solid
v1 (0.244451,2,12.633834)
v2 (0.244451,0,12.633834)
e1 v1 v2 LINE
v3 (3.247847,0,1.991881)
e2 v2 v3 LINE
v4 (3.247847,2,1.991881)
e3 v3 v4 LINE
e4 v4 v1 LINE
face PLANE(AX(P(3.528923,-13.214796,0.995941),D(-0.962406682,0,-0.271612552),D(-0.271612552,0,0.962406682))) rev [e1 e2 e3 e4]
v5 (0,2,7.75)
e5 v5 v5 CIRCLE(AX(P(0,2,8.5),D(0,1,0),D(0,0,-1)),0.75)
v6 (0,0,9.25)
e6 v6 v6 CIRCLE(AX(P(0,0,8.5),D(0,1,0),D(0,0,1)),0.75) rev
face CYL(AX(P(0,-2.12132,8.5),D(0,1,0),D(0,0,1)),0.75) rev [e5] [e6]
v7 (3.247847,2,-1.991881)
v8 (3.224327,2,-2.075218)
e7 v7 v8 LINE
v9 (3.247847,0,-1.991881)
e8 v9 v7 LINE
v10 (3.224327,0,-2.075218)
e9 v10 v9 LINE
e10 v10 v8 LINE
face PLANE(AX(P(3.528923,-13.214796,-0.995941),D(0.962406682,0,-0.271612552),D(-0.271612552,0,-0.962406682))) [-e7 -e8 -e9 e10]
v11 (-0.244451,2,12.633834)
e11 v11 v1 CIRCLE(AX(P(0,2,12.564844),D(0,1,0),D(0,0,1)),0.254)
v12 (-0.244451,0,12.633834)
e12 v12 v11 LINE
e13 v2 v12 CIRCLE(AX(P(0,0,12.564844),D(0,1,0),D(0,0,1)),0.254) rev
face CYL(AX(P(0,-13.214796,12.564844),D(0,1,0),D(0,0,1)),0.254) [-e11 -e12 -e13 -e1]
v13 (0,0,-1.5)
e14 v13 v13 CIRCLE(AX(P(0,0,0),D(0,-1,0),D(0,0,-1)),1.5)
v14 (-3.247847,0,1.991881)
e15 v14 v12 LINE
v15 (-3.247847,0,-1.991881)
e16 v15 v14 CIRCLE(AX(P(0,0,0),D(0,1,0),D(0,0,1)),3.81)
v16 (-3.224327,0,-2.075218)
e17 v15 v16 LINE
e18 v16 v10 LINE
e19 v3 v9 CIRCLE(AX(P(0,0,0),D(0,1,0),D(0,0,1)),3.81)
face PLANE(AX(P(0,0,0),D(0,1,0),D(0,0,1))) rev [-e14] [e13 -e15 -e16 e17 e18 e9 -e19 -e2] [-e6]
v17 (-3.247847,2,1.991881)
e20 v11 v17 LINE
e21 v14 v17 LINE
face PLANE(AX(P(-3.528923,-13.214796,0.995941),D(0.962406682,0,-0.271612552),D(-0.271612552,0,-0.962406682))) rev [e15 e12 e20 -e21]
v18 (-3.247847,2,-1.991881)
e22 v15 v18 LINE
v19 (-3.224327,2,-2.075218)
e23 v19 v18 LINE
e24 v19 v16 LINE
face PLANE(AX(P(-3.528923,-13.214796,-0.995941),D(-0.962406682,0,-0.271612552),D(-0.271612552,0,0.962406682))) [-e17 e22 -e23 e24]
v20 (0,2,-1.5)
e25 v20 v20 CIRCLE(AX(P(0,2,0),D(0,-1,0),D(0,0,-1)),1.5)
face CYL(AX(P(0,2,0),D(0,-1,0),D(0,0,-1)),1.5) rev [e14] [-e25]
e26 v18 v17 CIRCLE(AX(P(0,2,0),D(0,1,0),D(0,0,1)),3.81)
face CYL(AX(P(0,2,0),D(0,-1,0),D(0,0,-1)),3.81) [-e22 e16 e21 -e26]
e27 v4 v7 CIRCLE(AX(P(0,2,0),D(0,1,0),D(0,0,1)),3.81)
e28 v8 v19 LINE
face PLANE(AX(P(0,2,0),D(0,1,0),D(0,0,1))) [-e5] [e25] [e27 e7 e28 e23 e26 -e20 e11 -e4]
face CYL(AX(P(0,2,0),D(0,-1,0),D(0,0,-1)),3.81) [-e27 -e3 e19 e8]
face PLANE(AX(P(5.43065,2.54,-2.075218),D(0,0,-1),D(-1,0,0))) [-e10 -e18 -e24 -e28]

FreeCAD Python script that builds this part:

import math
import FreeCAD as App
import Part
import Sketcher


def edges_at(feature, points):
    """Names of the edges that pass closest to the given points."""
    edges = feature.Shape.Edges
    near = lambda p: min(range(len(edges)), key=lambda i: edges[i].distToShape(Part.Vertex(*p))[0])
    return sorted({f"Edge{near(p) + 1}" for p in points})


def add_polygon(sketch, points):
    """Adds a closed chain of lines whose ends are joined by coincident constraints."""
    first, n = sketch.GeometryCount, len(points)
    for a, b in zip(points, points[1:] + points[:1]):
        sketch.addGeometry(Part.LineSegment(App.Vector(*a, 0), App.Vector(*b, 0)), False)
    for i in range(n):
        sketch.addConstraint(Sketcher.Constraint("Coincident", first + i, 2, first + (i + 1) % n, 1))

doc = App.newDocument("Part")
body = doc.addObject("PartDesign::Body", "Body")

sketch1 = doc.addObject("Sketcher::SketchObject", "Sketch")
body.addObject(sketch1)
sketch1.AttachmentSupport = (doc.XZ_Plane, [""])
sketch1.MapMode = "FlatFace"
sketch1.addGeometry(Part.Circle(App.Vector(0, 0, 0), App.Vector(0, 0, 1), 3.8), False)
sketch1.addConstraint(Sketcher.Constraint("Coincident", 0, 3, -1, 1))
sketch1.addConstraint(Sketcher.Constraint("Diameter", 0, 7.62))
pad1 = doc.addObject("PartDesign::Pad", "Pad")
body.addObject(pad1)
pad1.Profile = sketch1
pad1.Length = 2
pad1.Reversed = True

sketch2 = doc.addObject("Sketcher::SketchObject", "Sketch001")
body.addObject(sketch2)
sketch2.AttachmentSupport = (doc.XZ_Plane, [""])
sketch2.MapMode = "FlatFace"
sketch2.AttachmentOffset = App.Placement(App.Vector(0, 0, -2), App.Rotation())
sketch2.addGeometry(Part.LineSegment(App.Vector(0, 13.5, 0), App.Vector(3.2, 2, 0)), False)
sketch2.addGeometry(Part.ArcOfCircle(Part.Circle(App.Vector(0, 0, 0), App.Vector(0, 0, 1), 3.8), math.radians(32), math.radians(148)), False)
sketch2.addGeometry(Part.LineSegment(App.Vector(-3.2, 2, 0), App.Vector(0, 13.5, 0)), False)
sketch2.addGeometry(Part.ArcOfCircle(Part.Circle(App.Vector(0, 0, 0), App.Vector(0, 0, 1), 3.8), math.radians(-148), math.radians(-32)), False)
sketch2.addGeometry(Part.LineSegment(App.Vector(3.2, -2, 0), App.Vector(0, -13.5, 0)), False)
sketch2.addGeometry(Part.LineSegment(App.Vector(0, -13.5, 0), App.Vector(-3.2, -2, 0)), False)
sketch2.addConstraint(Sketcher.Constraint("Coincident", 0, 2, 1, 1))
sketch2.addConstraint(Sketcher.Constraint("Coincident", 1, 2, 2, 1))
sketch2.addConstraint(Sketcher.Constraint("Coincident", 2, 2, 0, 1))
sketch2.addConstraint(Sketcher.Constraint("Coincident", 3, 2, 4, 1))
sketch2.addConstraint(Sketcher.Constraint("Coincident", 4, 2, 5, 1))
sketch2.addConstraint(Sketcher.Constraint("Coincident", 5, 2, 3, 1))
sketch2.addConstraint(Sketcher.Constraint("Coincident", 1, 3, -1, 1))
sketch2.addConstraint(Sketcher.Constraint("Coincident", 3, 3, -1, 1))
sketch2.addConstraint(Sketcher.Constraint("Equal", 1, 3))
sketch2.addConstraint(Sketcher.Constraint("Symmetric", 2, 2, 4, 2, -1, 1))
sketch2.addConstraint(Sketcher.Constraint("PointOnObject", 2, 2, -2))
sketch2.addConstraint(Sketcher.Constraint("Parallel", 2, 4))
sketch2.addConstraint(Sketcher.Constraint("Parallel", 0, 5))
sketch2.addConstraint(Sketcher.Constraint("Horizontal", 0, 2, 1, 2))
sketch2.addConstraint(Sketcher.Constraint("Radius", 1, 3.81))
sketch2.addConstraint(Sketcher.Constraint("DistanceY", -1, 1, 2, 2, 13.5))
sketch2.addConstraint(Sketcher.Constraint("DistanceY", -1, 1, 0, 2, 1.991881))
pad2 = doc.addObject("PartDesign::Pad", "Pad001")
body.addObject(pad2)
pad2.Profile = sketch2
pad2.Length = 2
doc.recompute()

fillet = doc.addObject("PartDesign::Fillet", "Fillet")
body.addObject(fillet)
fillet.Base = (pad2, edges_at(pad2, [(0, 1, -13.5), (0, 1, 13.5)]))
fillet.Radius = 0.254

sketch3 = doc.addObject("Sketcher::SketchObject", "Sketch002")
body.addObject(sketch3)
sketch3.AttachmentSupport = (doc.XZ_Plane, [""])
sketch3.MapMode = "FlatFace"
sketch3.AttachmentOffset = App.Placement(App.Vector(0, 0, -2), App.Rotation())
sketch3.addGeometry(Part.Circle(App.Vector(0, -8.5, 0), App.Vector(0, 0, 1), 0.8), False)
sketch3.addGeometry(Part.Circle(App.Vector(0, 8.5, 0), App.Vector(0, 0, 1), 0.8), False)
sketch3.addConstraint(Sketcher.Constraint("Equal", 0, 1))
sketch3.addConstraint(Sketcher.Constraint("Symmetric", 0, 3, 1, 3, -1, 1))
sketch3.addConstraint(Sketcher.Constraint("PointOnObject", 0, 3, -2))
sketch3.addConstraint(Sketcher.Constraint("Diameter", 0, 1.5))
sketch3.addConstraint(Sketcher.Constraint("DistanceY", 0, 3, 1, 3, 17.0))
pocket1 = doc.addObject("PartDesign::Pocket", "Pocket")
body.addObject(pocket1)
pocket1.Profile = sketch3
pocket1.Length = 2
pocket1.Reversed = True

sketch4 = doc.addObject("Sketcher::SketchObject", "Sketch003")
body.addObject(sketch4)
sketch4.AttachmentSupport = (doc.XZ_Plane, [""])
sketch4.MapMode = "FlatFace"
sketch4.addGeometry(Part.Circle(App.Vector(0, 0, 0), App.Vector(0, 0, 1), 1.5), False)
sketch4.addConstraint(Sketcher.Constraint("Coincident", 0, 3, -1, 1))
sketch4.addConstraint(Sketcher.Constraint("Diameter", 0, 3.0))
pocket2 = doc.addObject("PartDesign::Pocket", "Pocket001")
body.addObject(pocket2)
pocket2.Profile = sketch4
pocket2.Type = "ThroughAll"

sketch5 = doc.addObject("Sketcher::SketchObject", "Sketch004")
body.addObject(sketch5)
sketch5.AttachmentSupport = (doc.XZ_Plane, [""])
sketch5.MapMode = "FlatFace"
add_polygon(sketch5, [(-6, -2), (5, -2), (5, -15), (-6, -15)])
sketch5.addConstraint(Sketcher.Constraint("Horizontal", 0))
sketch5.addConstraint(Sketcher.Constraint("Vertical", 1))
sketch5.addConstraint(Sketcher.Constraint("Horizontal", 2))
sketch5.addConstraint(Sketcher.Constraint("Vertical", 3))
sketch5.addConstraint(Sketcher.Constraint("DistanceX", 0, 1, 0, 2, 11.348339))
sketch5.addConstraint(Sketcher.Constraint("DistanceY", 1, 2, 1, 1, 12.756527))
sketch5.addConstraint(Sketcher.Constraint("DistanceX", -1, 1, 0, 2, 5.43065))
sketch5.addConstraint(Sketcher.Constraint("DistanceY", 0, 2, -1, 1, 2.075218))
pocket3 = doc.addObject("PartDesign::Pocket", "Pocket002")
body.addObject(pocket3)
pocket3.Profile = sketch5
pocket3.Length = 2.54

doc.recompute()
